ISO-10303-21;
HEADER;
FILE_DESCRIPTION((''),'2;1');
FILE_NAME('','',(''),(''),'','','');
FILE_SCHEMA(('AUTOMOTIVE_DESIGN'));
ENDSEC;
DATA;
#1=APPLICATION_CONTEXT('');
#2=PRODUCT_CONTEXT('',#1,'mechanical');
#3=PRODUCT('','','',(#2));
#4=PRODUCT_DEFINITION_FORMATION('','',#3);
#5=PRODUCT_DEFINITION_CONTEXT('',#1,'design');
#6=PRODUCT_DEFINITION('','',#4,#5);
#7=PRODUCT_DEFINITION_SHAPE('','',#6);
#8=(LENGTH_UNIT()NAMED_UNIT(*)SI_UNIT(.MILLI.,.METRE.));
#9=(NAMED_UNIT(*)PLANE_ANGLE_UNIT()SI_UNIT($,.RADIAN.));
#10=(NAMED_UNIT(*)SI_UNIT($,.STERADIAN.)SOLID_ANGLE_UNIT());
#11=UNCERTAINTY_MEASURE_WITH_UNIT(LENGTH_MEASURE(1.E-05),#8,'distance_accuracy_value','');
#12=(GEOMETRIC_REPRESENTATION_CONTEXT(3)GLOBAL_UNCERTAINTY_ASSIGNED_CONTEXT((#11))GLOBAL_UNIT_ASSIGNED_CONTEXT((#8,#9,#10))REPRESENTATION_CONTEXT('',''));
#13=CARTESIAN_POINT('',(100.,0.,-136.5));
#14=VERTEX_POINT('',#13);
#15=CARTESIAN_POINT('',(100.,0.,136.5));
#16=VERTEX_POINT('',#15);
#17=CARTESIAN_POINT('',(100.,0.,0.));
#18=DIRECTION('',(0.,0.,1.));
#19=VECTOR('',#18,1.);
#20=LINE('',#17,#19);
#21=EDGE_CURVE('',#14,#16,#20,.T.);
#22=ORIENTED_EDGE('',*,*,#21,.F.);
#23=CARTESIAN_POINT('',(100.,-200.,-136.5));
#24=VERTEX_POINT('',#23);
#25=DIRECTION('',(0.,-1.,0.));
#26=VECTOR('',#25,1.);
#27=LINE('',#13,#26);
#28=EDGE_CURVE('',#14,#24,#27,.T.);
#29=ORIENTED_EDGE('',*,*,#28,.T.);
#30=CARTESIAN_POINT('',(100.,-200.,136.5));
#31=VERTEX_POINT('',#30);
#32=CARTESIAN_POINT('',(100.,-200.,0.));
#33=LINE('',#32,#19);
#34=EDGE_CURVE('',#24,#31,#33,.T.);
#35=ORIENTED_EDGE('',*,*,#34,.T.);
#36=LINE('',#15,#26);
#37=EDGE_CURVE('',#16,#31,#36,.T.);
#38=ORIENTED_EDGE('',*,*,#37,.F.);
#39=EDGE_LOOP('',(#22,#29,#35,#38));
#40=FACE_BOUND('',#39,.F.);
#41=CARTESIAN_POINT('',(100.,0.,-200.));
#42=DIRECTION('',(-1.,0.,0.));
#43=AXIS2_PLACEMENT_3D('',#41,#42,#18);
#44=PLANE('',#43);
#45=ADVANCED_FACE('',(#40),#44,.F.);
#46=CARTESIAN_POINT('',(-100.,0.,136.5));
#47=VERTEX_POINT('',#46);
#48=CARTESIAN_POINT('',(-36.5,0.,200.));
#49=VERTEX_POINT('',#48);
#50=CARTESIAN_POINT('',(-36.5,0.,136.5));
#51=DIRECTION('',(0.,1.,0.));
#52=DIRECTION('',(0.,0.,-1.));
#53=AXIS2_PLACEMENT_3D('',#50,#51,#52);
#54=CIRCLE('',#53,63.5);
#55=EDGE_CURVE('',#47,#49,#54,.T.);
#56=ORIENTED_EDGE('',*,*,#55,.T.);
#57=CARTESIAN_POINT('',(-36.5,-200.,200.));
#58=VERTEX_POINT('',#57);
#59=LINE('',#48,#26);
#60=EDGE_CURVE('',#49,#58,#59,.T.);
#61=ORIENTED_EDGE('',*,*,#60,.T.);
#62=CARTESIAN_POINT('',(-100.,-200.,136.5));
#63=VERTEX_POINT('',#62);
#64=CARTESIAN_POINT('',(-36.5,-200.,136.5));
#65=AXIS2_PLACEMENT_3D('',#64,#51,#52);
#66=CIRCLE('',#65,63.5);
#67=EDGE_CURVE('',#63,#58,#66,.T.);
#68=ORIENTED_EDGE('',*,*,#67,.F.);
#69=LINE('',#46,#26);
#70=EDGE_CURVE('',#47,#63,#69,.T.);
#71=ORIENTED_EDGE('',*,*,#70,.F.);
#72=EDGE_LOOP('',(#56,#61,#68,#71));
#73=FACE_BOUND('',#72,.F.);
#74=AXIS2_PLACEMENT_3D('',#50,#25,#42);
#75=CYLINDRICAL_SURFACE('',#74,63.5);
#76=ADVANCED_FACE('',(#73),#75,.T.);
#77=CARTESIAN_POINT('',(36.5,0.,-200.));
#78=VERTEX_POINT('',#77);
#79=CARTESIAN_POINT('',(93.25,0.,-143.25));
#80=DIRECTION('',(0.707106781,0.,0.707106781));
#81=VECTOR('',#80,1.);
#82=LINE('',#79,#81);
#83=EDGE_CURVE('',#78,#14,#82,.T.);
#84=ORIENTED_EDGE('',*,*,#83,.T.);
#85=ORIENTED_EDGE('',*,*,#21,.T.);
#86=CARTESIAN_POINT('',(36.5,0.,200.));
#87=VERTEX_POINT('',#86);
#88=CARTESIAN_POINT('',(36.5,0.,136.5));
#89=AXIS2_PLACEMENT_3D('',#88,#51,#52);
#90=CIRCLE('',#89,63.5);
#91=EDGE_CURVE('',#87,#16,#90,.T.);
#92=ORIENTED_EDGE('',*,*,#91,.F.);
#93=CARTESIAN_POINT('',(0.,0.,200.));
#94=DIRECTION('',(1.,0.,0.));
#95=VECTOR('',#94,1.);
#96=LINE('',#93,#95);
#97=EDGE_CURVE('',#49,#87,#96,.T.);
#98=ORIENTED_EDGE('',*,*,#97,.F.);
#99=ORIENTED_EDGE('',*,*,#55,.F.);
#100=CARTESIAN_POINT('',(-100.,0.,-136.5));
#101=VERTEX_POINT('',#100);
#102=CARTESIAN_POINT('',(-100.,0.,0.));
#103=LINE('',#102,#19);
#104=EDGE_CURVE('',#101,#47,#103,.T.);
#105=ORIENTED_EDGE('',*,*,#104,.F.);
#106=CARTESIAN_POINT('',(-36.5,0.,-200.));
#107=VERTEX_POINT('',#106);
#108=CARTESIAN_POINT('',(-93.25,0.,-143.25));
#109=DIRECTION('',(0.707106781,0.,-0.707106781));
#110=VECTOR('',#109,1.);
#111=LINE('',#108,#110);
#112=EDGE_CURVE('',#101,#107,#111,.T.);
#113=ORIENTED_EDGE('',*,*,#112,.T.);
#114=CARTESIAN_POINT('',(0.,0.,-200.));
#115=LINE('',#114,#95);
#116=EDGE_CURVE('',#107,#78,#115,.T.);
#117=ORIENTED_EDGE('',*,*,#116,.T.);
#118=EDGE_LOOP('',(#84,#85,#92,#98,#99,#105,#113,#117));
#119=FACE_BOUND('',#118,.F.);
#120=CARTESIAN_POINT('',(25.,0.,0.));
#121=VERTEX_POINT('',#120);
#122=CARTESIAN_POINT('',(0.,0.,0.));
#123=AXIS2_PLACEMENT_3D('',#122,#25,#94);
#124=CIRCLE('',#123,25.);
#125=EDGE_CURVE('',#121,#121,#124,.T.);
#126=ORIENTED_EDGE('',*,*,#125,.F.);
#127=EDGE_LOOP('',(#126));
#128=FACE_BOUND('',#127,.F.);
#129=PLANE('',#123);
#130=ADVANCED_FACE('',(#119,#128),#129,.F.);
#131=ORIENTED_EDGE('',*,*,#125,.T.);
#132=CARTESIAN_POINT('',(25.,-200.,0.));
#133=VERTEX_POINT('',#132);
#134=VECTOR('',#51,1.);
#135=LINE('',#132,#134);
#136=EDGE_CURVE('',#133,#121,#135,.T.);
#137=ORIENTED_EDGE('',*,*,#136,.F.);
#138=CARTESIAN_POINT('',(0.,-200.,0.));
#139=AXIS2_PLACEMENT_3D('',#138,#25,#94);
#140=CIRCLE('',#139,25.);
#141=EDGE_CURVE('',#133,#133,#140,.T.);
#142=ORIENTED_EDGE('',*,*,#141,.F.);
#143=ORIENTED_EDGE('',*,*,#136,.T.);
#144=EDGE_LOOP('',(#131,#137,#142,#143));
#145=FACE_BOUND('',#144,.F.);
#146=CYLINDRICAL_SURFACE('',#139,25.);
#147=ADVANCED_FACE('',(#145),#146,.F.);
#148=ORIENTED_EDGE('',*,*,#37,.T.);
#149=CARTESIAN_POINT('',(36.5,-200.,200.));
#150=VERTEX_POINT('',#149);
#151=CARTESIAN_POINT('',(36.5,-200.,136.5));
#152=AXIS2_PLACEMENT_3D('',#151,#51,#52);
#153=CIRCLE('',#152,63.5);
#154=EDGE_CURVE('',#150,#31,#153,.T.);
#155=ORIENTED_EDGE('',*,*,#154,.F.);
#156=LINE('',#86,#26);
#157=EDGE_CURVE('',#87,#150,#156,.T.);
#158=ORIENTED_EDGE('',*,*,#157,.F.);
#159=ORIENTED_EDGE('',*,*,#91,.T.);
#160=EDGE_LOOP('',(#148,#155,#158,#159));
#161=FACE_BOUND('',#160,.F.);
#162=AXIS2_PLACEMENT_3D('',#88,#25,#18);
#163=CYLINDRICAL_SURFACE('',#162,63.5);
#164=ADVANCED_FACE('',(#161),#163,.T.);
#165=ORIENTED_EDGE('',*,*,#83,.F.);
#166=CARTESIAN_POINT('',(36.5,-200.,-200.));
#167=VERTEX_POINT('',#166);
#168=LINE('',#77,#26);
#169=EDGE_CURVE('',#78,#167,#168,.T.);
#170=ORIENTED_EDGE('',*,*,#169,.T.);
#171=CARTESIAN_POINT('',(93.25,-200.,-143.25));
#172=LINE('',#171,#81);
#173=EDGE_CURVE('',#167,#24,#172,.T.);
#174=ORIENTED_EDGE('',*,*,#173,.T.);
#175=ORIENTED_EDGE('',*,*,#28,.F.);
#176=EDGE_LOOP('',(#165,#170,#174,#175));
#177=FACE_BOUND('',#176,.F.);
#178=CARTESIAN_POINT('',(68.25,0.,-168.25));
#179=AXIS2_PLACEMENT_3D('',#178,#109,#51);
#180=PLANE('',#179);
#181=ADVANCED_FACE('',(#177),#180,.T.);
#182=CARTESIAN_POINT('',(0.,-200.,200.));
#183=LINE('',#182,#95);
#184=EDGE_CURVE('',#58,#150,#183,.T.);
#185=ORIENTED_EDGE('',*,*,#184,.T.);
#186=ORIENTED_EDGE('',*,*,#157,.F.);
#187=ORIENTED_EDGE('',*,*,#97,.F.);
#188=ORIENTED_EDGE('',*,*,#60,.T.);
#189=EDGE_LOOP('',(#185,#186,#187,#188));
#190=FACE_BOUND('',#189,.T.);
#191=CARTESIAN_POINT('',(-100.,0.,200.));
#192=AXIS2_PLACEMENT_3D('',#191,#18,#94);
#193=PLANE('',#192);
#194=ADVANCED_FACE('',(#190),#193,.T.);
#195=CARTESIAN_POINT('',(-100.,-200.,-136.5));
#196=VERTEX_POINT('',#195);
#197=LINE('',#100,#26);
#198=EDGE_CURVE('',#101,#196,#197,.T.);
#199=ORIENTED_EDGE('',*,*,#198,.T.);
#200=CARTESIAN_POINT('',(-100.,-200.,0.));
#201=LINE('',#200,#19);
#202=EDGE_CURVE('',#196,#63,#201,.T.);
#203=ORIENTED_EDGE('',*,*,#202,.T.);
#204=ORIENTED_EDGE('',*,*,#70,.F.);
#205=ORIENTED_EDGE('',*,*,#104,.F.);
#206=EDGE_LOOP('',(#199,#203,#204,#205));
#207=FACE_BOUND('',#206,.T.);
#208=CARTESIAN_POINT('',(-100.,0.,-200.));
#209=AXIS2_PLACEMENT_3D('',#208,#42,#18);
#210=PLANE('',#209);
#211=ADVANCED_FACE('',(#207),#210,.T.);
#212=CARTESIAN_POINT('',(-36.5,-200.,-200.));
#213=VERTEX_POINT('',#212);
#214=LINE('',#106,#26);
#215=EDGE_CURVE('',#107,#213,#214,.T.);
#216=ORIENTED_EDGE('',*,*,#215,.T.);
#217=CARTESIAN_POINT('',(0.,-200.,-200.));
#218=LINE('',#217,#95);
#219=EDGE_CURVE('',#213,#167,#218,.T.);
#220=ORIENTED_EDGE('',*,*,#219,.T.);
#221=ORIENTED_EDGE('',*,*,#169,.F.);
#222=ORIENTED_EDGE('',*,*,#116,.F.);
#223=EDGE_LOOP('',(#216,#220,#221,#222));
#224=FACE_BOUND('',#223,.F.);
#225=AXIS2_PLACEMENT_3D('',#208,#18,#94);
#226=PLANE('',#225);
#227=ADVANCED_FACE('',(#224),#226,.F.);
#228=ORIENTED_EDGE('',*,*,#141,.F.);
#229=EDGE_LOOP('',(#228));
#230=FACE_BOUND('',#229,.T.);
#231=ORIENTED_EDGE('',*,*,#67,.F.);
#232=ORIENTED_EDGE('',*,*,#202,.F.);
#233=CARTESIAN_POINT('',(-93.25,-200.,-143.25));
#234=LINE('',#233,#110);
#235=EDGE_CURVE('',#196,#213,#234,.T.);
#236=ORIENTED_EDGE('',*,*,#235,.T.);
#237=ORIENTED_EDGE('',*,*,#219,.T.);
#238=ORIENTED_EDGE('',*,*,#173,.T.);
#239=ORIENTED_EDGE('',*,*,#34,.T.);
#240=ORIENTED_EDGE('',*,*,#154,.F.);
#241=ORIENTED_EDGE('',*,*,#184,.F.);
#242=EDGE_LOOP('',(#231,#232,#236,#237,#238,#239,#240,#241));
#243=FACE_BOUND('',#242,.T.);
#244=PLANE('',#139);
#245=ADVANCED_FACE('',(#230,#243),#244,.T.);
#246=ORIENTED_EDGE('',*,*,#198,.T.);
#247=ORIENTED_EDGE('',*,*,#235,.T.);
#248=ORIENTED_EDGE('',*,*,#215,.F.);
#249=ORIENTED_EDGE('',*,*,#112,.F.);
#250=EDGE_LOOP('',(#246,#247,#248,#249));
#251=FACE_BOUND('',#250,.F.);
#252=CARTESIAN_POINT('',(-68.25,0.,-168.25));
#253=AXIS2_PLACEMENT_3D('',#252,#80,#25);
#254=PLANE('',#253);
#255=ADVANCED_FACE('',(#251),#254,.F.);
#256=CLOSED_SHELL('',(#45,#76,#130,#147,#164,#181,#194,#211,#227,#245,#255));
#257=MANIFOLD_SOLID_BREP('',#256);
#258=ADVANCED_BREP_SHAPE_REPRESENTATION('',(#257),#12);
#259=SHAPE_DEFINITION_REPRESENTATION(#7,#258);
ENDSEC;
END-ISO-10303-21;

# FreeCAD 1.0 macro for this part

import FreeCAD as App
import Part
import Sketcher


def edges_at(feature, points):
    """Names of the edges that pass closest to the given points."""
    edges = feature.Shape.Edges
    near = lambda p: min(range(len(edges)), key=lambda i: edges[i].distToShape(Part.Vertex(*p))[0])
    return sorted({f"Edge{near(p) + 1}" for p in points})


def add_polygon(sketch, points):
    """Adds a closed chain of lines whose ends are joined by coincident constraints."""
    first, n = sketch.GeometryCount, len(points)
    for a, b in zip(points, points[1:] + points[:1]):
        sketch.addGeometry(Part.LineSegment(App.Vector(*a, 0), App.Vector(*b, 0)), False)
    for i in range(n):
        sketch.addConstraint(Sketcher.Constraint("Coincident", first + i, 2, first + (i + 1) % n, 1))

doc = App.newDocument("Part")
body = doc.addObject("PartDesign::Body", "Body")

# Sketch on XZ plane
sketch1 = body.newObject("Sketcher::SketchObject", "Sketch")
sketch1.AttachmentSupport = (doc.getObject("XZ_Plane"), [""])
sketch1.MapMode = "FlatFace"
add_polygon(sketch1, [(-100, 200), (-100, -200), (100, -200), (100, 200)])  # lines 0-3
sketch1.addConstraint(Sketcher.Constraint("Vertical", 0))
sketch1.addConstraint(Sketcher.Constraint("Horizontal", 1))
sketch1.addConstraint(Sketcher.Constraint("Vertical", 2))
sketch1.addConstraint(Sketcher.Constraint("Horizontal", 3))
sketch1.addConstraint(Sketcher.Constraint("Symmetric", 0, 2, 2, 2, -1, 1))
sketch1.addConstraint(Sketcher.Constraint("DistanceX", 1, 1, 1, 2, 200.0))
sketch1.addConstraint(Sketcher.Constraint("DistanceY", 0, 2, 0, 1, 400.0))
pad1 = body.newObject("PartDesign::Pad", "Pad")
pad1.Profile = sketch1
pad1.Length = 200

# Sketch on XZ plane
sketch2 = body.newObject("Sketcher::SketchObject", "Sketch001")
sketch2.AttachmentSupport = (doc.getObject("XZ_Plane"), [""])
sketch2.MapMode = "FlatFace"
sketch2.AttachmentOffset = App.Placement(App.Vector(0, 0, 200), App.Rotation())
sketch2.addGeometry(Part.Circle(App.Vector(0, 0, 0), App.Vector(0, 0, 1), 25), False)
sketch2.addConstraint(Sketcher.Constraint("Coincident", 0, 3, -1, 1))
sketch2.addConstraint(Sketcher.Constraint("Diameter", 0, 50.0))
pocket1 = body.newObject("PartDesign::Pocket", "Pocket")
pocket1.Profile = sketch2
pocket1.Type = "ThroughAll"
doc.recompute()

fillet = body.newObject("PartDesign::Fillet", "Fillet")
fillet.Base = (pocket1, edges_at(pocket1, [(100, -100, 200), (-100, -100, 200)]))
fillet.Radius = 63.5
doc.recompute()

chamfer = body.newObject("PartDesign::Chamfer", "Chamfer")
chamfer.Base = (fillet, edges_at(fillet, [(-100, -100, -200), (100, -100, -200)]))
chamfer.Size = 63.5

doc.recompute()
